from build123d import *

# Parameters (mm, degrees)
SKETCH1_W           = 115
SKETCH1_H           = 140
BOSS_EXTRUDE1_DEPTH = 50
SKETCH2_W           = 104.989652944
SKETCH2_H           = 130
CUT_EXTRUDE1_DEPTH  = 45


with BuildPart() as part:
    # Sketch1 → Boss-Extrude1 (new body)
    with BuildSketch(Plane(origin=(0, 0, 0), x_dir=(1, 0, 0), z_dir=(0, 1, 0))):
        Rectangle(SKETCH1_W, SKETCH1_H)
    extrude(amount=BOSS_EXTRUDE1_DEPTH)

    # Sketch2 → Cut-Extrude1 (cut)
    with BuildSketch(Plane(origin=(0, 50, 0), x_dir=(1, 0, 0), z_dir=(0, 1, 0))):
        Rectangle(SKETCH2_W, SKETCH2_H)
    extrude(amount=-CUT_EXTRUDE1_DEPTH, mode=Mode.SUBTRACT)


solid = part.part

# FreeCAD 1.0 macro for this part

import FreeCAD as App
import Part
import Sketcher
from FreeCAD import Vector


def add_polygon(sketch, points):
    """Adds a closed chain of lines whose ends are joined by coincident constraints."""
    first, n = sketch.GeometryCount, len(points)
    for a, b in zip(points, points[1:] + points[:1]):
        sketch.addGeometry(Part.LineSegment(App.Vector(*a, 0), App.Vector(*b, 0)), False)
    for i in range(n):
        sketch.addConstraint(Sketcher.Constraint("Coincident", first + i, 2, first + (i + 1) % n, 1))

doc = App.newDocument("Part")
body = doc.addObject("PartDesign::Body", "Body")

sketch1 = body.newObject("Sketcher::SketchObject", "Sketch")
sketch1.AttachmentSupport = (doc.getObject("XZ_Plane"), [""])
sketch1.MapMode = "FlatFace"
add_polygon(sketch1, [(-58, -70), (-58, 70), (58, 70), (58, -70)])
sketch1.addConstraint([
    Sketcher.Constraint("Vertical", 0),
    Sketcher.Constraint("Horizontal", 1),
    Sketcher.Constraint("Vertical", 2),
    Sketcher.Constraint("Horizontal", 3),
    Sketcher.Constraint("Symmetric", 0, 2, 2, 2, -1, 1),
    Sketcher.Constraint("DistanceX", 1, 1, 1, 2, 115.0),
    Sketcher.Constraint("DistanceY", 0, 1, 0, 2, 140.0),
])
pad1 = body.newObject("PartDesign::Pad", "Pad")
pad1.Profile = sketch1
pad1.Length = 50
pad1.Reversed = True

sketch2 = body.newObject("Sketcher::SketchObject", "Sketch001")
sketch2.AttachmentSupport = (doc.getObject("XZ_Plane"), [""])
sketch2.MapMode = "FlatFace"
sketch2.AttachmentOffset = App.Placement(Vector(0, 0, -50), App.Rotation())
add_polygon(sketch2, [(-52, -65), (-52, 65), (52, 65), (52, -65)])
sketch2.addConstraint([
    Sketcher.Constraint("Vertical", 0),
    Sketcher.Constraint("Horizontal", 1),
    Sketcher.Constraint("Vertical", 2),
    Sketcher.Constraint("Horizontal", 3),
    Sketcher.Constraint("Symmetric", 0, 2, 2, 2, -1, 1),
    Sketcher.Constraint("DistanceY", 0, 1, 0, 2, 130.0),
    Sketcher.Constraint("DistanceX", 1, 1, 1, 2, 104.989653),
])
pocket1 = body.newObject("PartDesign::Pocket", "Pocket")
pocket1.Profile = sketch2
pocket1.Length = 45
pocket1.Reversed = True

doc.recompute()
